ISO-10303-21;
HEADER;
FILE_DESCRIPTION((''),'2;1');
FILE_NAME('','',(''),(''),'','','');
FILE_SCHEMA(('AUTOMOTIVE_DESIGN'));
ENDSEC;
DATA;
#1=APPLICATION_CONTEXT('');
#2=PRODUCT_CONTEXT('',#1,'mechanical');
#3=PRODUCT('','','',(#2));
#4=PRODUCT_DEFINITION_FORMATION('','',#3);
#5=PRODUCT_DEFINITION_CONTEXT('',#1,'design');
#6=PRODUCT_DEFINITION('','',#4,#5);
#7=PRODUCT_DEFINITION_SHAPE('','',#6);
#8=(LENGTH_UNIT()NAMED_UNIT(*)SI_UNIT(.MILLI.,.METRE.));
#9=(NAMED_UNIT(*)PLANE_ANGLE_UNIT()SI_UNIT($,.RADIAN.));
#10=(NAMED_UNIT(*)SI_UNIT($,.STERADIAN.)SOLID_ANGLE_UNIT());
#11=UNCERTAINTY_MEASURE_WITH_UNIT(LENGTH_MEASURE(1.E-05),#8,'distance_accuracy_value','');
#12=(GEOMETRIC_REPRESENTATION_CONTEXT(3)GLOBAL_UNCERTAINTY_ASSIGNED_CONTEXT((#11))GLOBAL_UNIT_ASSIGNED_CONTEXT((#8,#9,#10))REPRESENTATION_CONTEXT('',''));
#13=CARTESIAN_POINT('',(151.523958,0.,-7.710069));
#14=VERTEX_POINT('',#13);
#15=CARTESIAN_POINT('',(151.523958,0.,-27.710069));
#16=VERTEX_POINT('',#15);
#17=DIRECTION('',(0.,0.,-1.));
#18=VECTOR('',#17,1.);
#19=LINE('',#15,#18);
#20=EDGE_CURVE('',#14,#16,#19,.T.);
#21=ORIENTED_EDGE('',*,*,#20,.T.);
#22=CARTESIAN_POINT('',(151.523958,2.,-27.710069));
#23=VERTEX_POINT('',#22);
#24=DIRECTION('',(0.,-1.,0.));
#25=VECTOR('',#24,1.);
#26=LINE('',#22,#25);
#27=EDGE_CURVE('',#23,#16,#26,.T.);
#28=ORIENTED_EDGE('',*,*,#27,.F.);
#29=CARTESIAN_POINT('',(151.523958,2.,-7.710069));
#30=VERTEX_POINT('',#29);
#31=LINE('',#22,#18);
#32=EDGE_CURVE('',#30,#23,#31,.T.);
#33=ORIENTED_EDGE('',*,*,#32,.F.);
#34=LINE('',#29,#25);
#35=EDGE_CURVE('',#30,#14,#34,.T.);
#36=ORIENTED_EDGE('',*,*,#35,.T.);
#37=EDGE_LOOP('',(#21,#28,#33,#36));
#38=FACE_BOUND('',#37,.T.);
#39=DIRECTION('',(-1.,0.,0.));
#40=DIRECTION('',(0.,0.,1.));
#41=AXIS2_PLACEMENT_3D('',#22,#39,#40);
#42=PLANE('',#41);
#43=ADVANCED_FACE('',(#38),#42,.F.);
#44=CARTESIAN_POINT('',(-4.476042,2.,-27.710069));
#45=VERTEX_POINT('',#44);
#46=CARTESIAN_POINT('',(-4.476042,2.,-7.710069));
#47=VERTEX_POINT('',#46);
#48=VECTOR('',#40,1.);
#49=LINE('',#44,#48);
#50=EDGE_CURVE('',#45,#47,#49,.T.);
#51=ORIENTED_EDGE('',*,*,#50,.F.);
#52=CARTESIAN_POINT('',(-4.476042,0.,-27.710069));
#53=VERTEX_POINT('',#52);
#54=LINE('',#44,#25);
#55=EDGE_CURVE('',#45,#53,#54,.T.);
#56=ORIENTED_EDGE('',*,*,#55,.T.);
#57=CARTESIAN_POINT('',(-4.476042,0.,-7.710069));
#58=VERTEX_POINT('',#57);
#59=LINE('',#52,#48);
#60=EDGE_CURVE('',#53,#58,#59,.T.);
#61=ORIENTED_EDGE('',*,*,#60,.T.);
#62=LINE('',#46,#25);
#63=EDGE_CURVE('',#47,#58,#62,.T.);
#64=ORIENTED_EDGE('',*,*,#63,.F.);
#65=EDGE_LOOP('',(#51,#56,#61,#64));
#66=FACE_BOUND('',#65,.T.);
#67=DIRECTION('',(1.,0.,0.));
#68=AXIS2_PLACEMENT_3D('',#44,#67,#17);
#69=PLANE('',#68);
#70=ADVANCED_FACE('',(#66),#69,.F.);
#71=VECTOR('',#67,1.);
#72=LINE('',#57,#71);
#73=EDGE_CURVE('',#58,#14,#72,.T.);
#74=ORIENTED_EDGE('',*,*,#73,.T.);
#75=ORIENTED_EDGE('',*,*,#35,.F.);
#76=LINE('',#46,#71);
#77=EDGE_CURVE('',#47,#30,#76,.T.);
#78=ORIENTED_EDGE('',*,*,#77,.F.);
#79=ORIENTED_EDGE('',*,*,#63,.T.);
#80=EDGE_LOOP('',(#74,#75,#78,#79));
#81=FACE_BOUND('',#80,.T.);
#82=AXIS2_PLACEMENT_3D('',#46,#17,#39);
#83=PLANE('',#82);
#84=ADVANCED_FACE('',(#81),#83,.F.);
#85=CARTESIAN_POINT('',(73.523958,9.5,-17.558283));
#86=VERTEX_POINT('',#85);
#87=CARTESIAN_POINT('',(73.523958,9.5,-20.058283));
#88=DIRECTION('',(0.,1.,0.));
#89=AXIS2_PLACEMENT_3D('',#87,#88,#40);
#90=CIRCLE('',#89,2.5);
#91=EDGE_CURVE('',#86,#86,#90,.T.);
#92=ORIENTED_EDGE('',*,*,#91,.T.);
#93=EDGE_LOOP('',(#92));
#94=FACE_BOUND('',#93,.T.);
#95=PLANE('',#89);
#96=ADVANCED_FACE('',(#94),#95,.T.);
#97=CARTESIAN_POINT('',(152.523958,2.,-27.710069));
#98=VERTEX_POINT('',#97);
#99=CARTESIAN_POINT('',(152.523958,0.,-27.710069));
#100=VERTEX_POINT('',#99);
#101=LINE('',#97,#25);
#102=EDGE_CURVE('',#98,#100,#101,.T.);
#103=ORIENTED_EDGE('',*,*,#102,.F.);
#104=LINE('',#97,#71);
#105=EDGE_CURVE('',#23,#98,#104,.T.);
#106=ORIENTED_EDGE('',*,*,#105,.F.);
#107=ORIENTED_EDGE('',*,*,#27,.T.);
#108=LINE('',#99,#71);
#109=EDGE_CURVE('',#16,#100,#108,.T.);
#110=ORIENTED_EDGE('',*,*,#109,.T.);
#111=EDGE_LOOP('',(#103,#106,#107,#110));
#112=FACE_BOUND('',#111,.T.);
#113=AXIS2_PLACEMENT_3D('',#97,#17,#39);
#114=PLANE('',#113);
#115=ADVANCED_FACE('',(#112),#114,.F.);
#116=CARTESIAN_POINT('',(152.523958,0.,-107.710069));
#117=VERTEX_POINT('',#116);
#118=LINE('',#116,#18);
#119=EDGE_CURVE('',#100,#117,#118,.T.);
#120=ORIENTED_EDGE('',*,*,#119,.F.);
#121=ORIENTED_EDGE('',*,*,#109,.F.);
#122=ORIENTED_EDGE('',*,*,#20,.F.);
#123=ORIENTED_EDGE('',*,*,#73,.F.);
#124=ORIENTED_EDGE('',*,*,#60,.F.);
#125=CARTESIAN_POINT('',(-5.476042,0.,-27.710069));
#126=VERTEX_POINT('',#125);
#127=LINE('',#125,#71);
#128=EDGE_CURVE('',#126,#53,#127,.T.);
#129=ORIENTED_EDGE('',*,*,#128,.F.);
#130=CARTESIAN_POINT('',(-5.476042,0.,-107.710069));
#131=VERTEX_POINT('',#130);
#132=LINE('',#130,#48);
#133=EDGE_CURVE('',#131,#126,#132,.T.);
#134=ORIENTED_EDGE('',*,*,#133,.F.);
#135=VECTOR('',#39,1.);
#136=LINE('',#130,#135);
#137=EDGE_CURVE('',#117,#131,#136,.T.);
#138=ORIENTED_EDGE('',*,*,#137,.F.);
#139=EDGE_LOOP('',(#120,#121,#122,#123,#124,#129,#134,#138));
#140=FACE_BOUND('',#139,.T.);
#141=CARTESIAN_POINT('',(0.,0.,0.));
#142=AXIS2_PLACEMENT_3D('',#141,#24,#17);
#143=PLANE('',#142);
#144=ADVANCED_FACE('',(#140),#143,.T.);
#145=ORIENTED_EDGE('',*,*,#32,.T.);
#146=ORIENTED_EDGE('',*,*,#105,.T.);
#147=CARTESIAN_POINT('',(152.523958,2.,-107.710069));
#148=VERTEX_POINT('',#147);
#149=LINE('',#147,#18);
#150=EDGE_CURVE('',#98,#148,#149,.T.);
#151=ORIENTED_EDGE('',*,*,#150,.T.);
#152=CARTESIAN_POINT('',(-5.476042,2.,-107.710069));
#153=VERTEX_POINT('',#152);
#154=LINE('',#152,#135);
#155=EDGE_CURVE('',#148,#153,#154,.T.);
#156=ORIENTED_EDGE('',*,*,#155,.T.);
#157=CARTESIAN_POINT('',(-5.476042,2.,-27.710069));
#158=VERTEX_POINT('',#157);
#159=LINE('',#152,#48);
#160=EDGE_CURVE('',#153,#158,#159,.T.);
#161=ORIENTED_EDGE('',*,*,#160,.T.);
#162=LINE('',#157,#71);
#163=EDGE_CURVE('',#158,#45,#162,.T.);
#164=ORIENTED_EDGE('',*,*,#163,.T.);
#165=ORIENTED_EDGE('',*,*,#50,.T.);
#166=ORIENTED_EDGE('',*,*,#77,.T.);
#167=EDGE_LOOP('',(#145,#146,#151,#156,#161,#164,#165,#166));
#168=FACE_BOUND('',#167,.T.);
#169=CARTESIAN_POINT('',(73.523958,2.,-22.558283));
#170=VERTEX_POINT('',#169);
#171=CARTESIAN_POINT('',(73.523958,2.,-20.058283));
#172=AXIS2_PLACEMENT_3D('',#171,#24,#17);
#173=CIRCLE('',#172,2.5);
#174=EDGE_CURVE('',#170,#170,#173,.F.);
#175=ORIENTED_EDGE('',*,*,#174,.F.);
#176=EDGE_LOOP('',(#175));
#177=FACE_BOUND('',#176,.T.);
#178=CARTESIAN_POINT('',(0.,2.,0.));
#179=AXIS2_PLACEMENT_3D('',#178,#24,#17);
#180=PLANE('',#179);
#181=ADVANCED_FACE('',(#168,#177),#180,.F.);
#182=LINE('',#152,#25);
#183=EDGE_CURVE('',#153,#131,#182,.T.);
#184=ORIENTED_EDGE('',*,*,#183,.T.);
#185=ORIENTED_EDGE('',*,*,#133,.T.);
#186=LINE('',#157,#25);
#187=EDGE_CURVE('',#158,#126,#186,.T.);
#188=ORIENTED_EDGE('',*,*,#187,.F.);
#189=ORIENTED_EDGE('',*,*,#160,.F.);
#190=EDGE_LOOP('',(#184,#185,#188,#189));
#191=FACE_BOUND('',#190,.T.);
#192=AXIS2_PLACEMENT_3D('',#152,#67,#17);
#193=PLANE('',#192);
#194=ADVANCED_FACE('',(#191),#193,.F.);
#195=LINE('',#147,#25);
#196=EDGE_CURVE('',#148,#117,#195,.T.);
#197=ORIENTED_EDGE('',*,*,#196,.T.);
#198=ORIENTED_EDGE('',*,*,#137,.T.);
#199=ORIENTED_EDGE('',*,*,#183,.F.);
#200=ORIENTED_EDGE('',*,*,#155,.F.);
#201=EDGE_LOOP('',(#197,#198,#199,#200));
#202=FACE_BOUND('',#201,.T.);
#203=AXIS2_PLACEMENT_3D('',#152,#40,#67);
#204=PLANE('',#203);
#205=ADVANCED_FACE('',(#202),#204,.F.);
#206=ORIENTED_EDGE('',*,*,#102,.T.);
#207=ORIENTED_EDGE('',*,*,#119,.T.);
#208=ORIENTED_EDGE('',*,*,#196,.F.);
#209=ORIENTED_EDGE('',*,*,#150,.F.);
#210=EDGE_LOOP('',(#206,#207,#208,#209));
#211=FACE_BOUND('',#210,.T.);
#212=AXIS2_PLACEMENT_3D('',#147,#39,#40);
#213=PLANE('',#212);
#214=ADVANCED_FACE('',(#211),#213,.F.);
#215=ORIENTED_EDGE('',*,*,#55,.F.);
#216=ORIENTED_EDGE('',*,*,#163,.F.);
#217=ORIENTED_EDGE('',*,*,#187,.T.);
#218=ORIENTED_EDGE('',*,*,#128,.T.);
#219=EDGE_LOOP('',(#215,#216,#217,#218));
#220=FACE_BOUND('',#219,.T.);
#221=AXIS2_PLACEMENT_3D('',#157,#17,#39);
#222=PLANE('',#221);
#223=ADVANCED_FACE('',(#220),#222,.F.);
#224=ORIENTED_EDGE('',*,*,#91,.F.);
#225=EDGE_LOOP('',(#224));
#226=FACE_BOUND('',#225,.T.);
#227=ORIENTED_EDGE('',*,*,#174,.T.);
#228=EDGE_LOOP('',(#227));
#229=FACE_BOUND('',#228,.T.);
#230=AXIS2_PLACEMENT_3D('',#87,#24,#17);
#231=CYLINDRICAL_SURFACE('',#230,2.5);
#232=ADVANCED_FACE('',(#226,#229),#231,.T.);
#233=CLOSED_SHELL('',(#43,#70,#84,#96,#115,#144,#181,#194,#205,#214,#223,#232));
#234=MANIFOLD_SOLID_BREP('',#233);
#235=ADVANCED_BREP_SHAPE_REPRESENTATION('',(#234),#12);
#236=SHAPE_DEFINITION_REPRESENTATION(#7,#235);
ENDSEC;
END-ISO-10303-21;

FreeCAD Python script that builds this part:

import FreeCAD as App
import Part
import Sketcher
Q = App.Units.Quantity


def add_polygon(sketch, points):
    """Adds a closed chain of lines whose ends are joined by coincident constraints."""
    first, n = sketch.GeometryCount, len(points)
    for a, b in zip(points, points[1:] + points[:1]):
        sketch.addGeometry(Part.LineSegment(App.Vector(*a, 0), App.Vector(*b, 0)), False)
    for i in range(n):
        sketch.addConstraint(Sketcher.Constraint("Coincident", first + i, 2, first + (i + 1) % n, 1))

doc = App.newDocument("Part")
body = doc.addObject("PartDesign::Body", "Body")

sketch1 = body.newObject("Sketcher::SketchObject", "Sketch")
sketch1.AttachmentSupport = (doc.getObject("XZ_Plane"), [""])
sketch1.MapMode = "FlatFace"
add_polygon(sketch1, [(-5.5, -107.7), (-5.5, -27.7), (-4.5, -27.7), (-4.5, -7.7), (151.5, -7.7), (151.5, -27.7), (152.5, -27.7), (152.5, -107.7)])
sketch1.addConstraint([
    Sketcher.Constraint("Vertical", 0),
    Sketcher.Constraint("Horizontal", 1),
    Sketcher.Constraint("Vertical", 2),
    Sketcher.Constraint("Horizontal", 3),
    Sketcher.Constraint("Vertical", 4),
    Sketcher.Constraint("Horizontal", 5),
    Sketcher.Constraint("Vertical", 6),
    Sketcher.Constraint("Horizontal", 7),
    Sketcher.Constraint("Horizontal", 1, 2, 4, 2),
    Sketcher.Constraint("Equal", 1, 5),
    Sketcher.Constraint("DistanceX", 1, 1, 1, 2, Q("1 mm")),
    Sketcher.Constraint("DistanceX", 3, 1, 3, 2, Q("156 mm")),
    Sketcher.Constraint("DistanceY", 0, 1, 0, 2, Q("80 mm")),
    Sketcher.Constraint("DistanceY", 2, 1, 2, 2, Q("20 mm")),
    Sketcher.Constraint("DistanceX", 0, 2, -1, 1, Q("5.476042 mm")),
    Sketcher.Constraint("DistanceY", 0, 2, -1, 1, Q("27.710069 mm")),
])
pad1 = body.newObject("PartDesign::Pad", "Pad")
pad1.Profile = sketch1
pad1.Length = 2
pad1.Reversed = True

sketch2 = body.newObject("Sketcher::SketchObject", "Sketch001")
sketch2.AttachmentSupport = (doc.getObject("XZ_Plane"), [""])
sketch2.MapMode = "FlatFace"
sketch2.AttachmentOffset = App.Placement(App.Vector(0, 0, -2), App.Rotation())
sketch2.addGeometry(Part.Circle(App.Vector(73.5, -20.1, 0), App.Vector(0, 0, 1), 2.5), False)
sketch2.addConstraint([
    Sketcher.Constraint("Diameter", 0, Q("5 mm")),
    Sketcher.Constraint("DistanceX", -1, 1, 0, 3, Q("73.523958 mm")),
    Sketcher.Constraint("DistanceY", 0, 3, -1, 1, Q("20.058283 mm")),
])
pad2 = body.newObject("PartDesign::Pad", "Pad001")
pad2.Profile = sketch2
pad2.Length = 7.5
pad2.Reversed = True

doc.recompute()
